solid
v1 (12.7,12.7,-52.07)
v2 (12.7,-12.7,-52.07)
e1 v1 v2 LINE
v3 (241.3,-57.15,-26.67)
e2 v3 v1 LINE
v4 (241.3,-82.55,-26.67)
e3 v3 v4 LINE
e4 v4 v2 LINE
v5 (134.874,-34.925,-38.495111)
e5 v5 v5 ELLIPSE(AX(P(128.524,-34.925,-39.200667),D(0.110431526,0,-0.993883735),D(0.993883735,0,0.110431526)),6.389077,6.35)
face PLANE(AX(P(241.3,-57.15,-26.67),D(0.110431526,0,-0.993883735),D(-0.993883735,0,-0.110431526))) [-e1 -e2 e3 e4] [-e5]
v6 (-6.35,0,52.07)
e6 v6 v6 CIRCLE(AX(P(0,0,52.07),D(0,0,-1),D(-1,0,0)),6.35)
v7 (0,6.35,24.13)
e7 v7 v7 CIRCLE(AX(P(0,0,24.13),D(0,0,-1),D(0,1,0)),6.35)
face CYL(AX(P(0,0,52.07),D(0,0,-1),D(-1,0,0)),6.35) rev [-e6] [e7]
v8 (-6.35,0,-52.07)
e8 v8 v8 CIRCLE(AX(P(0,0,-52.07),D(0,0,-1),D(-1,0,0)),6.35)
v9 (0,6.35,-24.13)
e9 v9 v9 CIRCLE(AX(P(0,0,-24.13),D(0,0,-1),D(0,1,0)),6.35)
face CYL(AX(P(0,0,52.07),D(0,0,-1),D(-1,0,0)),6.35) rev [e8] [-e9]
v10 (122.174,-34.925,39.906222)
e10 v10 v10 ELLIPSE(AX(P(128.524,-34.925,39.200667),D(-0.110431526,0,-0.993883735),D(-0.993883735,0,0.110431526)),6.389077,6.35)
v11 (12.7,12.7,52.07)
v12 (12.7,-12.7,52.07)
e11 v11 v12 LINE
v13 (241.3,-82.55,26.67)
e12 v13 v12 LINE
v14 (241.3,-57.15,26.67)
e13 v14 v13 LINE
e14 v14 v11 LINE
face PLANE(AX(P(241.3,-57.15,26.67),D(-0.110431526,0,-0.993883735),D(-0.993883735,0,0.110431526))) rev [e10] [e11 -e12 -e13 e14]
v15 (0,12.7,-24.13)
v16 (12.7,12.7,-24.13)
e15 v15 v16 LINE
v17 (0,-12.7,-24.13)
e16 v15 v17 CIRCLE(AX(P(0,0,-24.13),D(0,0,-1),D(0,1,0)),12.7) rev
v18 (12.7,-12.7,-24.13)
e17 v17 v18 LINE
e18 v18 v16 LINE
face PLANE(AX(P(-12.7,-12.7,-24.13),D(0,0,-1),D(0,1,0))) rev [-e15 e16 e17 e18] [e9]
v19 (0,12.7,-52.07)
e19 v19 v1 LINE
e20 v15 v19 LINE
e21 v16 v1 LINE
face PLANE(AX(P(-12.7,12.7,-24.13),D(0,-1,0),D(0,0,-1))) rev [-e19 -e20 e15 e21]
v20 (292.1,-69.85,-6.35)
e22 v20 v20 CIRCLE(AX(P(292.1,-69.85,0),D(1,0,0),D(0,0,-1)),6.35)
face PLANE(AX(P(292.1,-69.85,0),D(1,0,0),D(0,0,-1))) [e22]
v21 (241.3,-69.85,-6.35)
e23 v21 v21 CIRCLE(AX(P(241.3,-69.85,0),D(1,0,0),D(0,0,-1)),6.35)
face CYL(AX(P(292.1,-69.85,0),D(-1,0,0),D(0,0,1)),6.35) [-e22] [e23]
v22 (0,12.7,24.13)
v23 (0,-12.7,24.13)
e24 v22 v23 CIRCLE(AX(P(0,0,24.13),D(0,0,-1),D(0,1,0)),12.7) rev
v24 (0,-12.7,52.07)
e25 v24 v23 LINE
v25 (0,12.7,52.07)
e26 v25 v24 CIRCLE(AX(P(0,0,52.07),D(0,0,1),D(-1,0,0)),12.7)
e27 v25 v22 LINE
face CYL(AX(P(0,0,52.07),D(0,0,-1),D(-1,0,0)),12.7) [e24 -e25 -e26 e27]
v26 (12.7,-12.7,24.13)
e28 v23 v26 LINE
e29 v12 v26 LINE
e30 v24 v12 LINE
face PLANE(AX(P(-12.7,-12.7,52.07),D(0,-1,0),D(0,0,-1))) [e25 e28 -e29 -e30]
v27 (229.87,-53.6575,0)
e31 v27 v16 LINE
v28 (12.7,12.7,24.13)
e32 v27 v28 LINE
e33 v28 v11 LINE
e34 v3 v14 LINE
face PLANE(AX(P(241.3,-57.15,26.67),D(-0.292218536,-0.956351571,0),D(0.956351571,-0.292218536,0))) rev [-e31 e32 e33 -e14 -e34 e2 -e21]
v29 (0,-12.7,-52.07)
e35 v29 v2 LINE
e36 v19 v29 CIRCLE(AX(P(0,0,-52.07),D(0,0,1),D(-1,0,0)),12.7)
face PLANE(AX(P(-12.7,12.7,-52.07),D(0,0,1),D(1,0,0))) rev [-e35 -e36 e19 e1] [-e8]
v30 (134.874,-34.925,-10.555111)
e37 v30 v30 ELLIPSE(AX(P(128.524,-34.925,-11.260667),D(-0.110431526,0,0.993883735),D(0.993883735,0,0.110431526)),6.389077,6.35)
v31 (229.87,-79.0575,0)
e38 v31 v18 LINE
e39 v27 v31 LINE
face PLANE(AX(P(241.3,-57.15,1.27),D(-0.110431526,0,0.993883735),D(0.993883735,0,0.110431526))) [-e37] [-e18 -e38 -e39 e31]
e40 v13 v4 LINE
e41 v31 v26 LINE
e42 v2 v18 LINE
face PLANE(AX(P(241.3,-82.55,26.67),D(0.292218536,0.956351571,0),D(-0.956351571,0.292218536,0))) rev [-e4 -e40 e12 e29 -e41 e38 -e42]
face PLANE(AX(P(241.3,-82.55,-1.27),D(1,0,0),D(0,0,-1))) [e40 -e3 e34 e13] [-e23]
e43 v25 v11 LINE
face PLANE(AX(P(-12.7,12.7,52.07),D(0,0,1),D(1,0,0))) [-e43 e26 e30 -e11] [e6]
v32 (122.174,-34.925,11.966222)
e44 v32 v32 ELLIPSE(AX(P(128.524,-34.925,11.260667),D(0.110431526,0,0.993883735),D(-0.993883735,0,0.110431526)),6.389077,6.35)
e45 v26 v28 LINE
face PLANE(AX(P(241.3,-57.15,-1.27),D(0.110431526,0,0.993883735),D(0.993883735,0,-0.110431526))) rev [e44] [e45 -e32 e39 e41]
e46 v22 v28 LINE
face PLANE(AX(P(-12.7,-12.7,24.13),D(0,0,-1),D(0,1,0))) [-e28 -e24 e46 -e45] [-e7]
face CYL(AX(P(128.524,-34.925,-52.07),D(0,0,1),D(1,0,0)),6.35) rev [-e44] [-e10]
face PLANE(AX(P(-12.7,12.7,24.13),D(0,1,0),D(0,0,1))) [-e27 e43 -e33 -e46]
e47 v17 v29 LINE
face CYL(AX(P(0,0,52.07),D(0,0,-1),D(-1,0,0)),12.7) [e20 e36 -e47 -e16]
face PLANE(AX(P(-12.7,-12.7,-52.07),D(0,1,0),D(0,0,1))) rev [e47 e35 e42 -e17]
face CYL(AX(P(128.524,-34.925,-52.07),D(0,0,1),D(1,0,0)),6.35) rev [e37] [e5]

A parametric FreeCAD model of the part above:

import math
import FreeCAD as App
import Part
import Sketcher
from FreeCAD import Vector
Q = App.Units.Quantity

doc = App.newDocument("Part")
body = doc.addObject("PartDesign::Body", "Body")

# Sketch on YZ plane
sketch1 = body.newObject("Sketcher::SketchObject", "Sketch")
sketch1.AttachmentSupport = (doc.getObject("YZ_Plane"), [""])
sketch1.MapMode = "FlatFace"
sketch1.AttachmentOffset = App.Placement(Vector(0, 0, 0.5 * 25.4), App.Rotation())
sketch1.addGeometry(Part.LineSegment(Vector(13, 52, 0), Vector(-13, 52, 0)), False)
sketch1.addGeometry(Part.LineSegment(Vector(-13, 52, 0), Vector(-13, 24, 0)), False)
sketch1.addGeometry(Part.LineSegment(Vector(-13, 24, 0), Vector(13, 24, 0)), False)
sketch1.addGeometry(Part.LineSegment(Vector(13, 24, 0), Vector(13, 52, 0)), False)
sketch1.addConstraint(Sketcher.Constraint("Coincident", 0, 2, 1, 1))
sketch1.addConstraint(Sketcher.Constraint("Coincident", 1, 2, 2, 1))
sketch1.addConstraint(Sketcher.Constraint("Coincident", 2, 2, 3, 1))
sketch1.addConstraint(Sketcher.Constraint("Coincident", 3, 2, 0, 1))
sketch1.addConstraint(Sketcher.Constraint("Horizontal", 0))
sketch1.addConstraint(Sketcher.Constraint("Vertical", 1))
sketch1.addConstraint(Sketcher.Constraint("Horizontal", 2))
sketch1.addConstraint(Sketcher.Constraint("Vertical", 3))
sketch1.addConstraint(Sketcher.Constraint("DistanceX", 0, 2, 0, 1, Q("1 in")))
sketch1.addConstraint(Sketcher.Constraint("DistanceY", 1, 2, 1, 1, Q("1.1 in")))
sketch1.addConstraint(Sketcher.Constraint("DistanceX", 0, 2, -1, 1, Q("0.5 in")))
sketch1.addConstraint(Sketcher.Constraint("DistanceY", -1, 1, 0, 2, Q("2.05 in")))

# Sketch on an angled plane
sketch2 = body.newObject("Sketcher::SketchObject", "Sketch001")
sketch2.Placement = App.Placement(Vector(1.084474, 3.549188, 0), App.Rotation(Vector(0.956351571, -0.292218536, 0), Vector(0, 0, 1), Vector(-0.292218536, -0.956351571, 0), "ZXY"))
sketch2.addGeometry(Part.LineSegment(Vector(12, 38, 0), Vector(251, 13, 0)), False)
sketch2.addConstraint(Sketcher.Constraint("DistanceY", 0, 2, 0, 1, Q("1 in")))
sketch2.addConstraint(Sketcher.Constraint("DistanceY", -1, 1, 0, 1, Q("1.5 in")))
sketch2.addConstraint(Sketcher.Constraint("DistanceX", -1, 1, 0, 2, 251.179099))
sketch2.addConstraint(Sketcher.Constraint("Distance", 0, 240.379164))
doc.recompute()

additivepipe = body.newObject("PartDesign::AdditivePipe", "AdditivePipe")
additivepipe.Profile = sketch1
additivepipe.Spine = (sketch2, ["Edge1"])

# Sketch on YZ plane
sketch3 = body.newObject("Sketcher::SketchObject", "Sketch002")
sketch3.AttachmentSupport = (doc.getObject("YZ_Plane"), [""])
sketch3.MapMode = "FlatFace"
sketch3.AttachmentOffset = App.Placement(Vector(0, 0, 0.5 * 25.4), App.Rotation())
sketch3.addGeometry(Part.LineSegment(Vector(13, 52, 0), Vector(-13, 52, 0)), False)
sketch3.addGeometry(Part.LineSegment(Vector(-13, 52, 0), Vector(-13, 24, 0)), False)
sketch3.addGeometry(Part.LineSegment(Vector(-13, 24, 0), Vector(13, 24, 0)), False)
sketch3.addGeometry(Part.LineSegment(Vector(13, 24, 0), Vector(13, 52, 0)), False)
sketch3.addConstraint(Sketcher.Constraint("Coincident", 0, 2, 1, 1))
sketch3.addConstraint(Sketcher.Constraint("Coincident", 1, 2, 2, 1))
sketch3.addConstraint(Sketcher.Constraint("Coincident", 2, 2, 3, 1))
sketch3.addConstraint(Sketcher.Constraint("Coincident", 3, 2, 0, 1))
sketch3.addConstraint(Sketcher.Constraint("Horizontal", 0))
sketch3.addConstraint(Sketcher.Constraint("Vertical", 1))
sketch3.addConstraint(Sketcher.Constraint("Horizontal", 2))
sketch3.addConstraint(Sketcher.Constraint("Vertical", 3))
sketch3.addConstraint(Sketcher.Constraint("DistanceX", 0, 2, 0, 1, Q("1 in")))
sketch3.addConstraint(Sketcher.Constraint("DistanceY", 1, 2, 1, 1, Q("1.1 in")))
sketch3.addConstraint(Sketcher.Constraint("DistanceX", 0, 2, -1, 1, Q("0.5 in")))
sketch3.addConstraint(Sketcher.Constraint("DistanceY", -1, 1, 0, 2, Q("2.05 in")))
pad1 = body.newObject("PartDesign::Pad", "Pad")
pad1.Profile = sketch3
pad1.Length = Q("1 in")
pad1.Reversed = True
doc.recompute()

mirrored = body.newObject("PartDesign::Mirrored", "Mirrored")
mirrored.Originals = [additivepipe, pad1]
mirrored.MirrorPlane = (doc.getObject("XY_Plane"), [""])
body.Tip = mirrored

# Sketch on XY plane
sketch4 = body.newObject("Sketcher::SketchObject", "Sketch003")
sketch4.AttachmentSupport = (doc.getObject("XY_Plane"), [""])
sketch4.MapMode = "FlatFace"
sketch4.AttachmentOffset = App.Placement(Vector(0, 0, -2.05 * 25.4), App.Rotation())
sketch4.addGeometry(Part.Circle(Vector(0, 0, 0), Vector(0, 0, 1), 6), False)
sketch4.addConstraint(Sketcher.Constraint("Coincident", 0, 3, -1, 1))
sketch4.addConstraint(Sketcher.Constraint("Diameter", 0, Q("0.5 in")))
pocket1 = body.newObject("PartDesign::Pocket", "Pocket")
pocket1.Profile = sketch4
pocket1.Type = "ThroughAll"
pocket1.Reversed = True

# Sketch on XY plane
sketch5 = body.newObject("Sketcher::SketchObject", "Sketch004")
sketch5.AttachmentSupport = (doc.getObject("XY_Plane"), [""])
sketch5.MapMode = "FlatFace"
sketch5.AttachmentOffset = App.Placement(Vector(0, 0, -2.05 * 25.4), App.Rotation())
sketch5.addGeometry(Part.LineSegment(Vector(-13, 13, 0), Vector(0, 13, 0)), False)
sketch5.addGeometry(Part.ArcOfCircle(Part.Circle(Vector(0, 0, 0), Vector(0, 0, 1), 13), math.radians(90), math.radians(180)), False)
sketch5.addGeometry(Part.LineSegment(Vector(-13, 0, 0), Vector(-13, 13, 0)), False)
sketch5.addConstraint(Sketcher.Constraint("Tangent", 0, 2, 1, 1))
sketch5.addConstraint(Sketcher.Constraint("Tangent", 1, 2, 2, 1))
sketch5.addConstraint(Sketcher.Constraint("Coincident", 2, 2, 0, 1))
sketch5.addConstraint(Sketcher.Constraint("Horizontal", 0))
sketch5.addConstraint(Sketcher.Constraint("Vertical", 2))
sketch5.addConstraint(Sketcher.Constraint("Coincident", 1, 3, -1, 1))
sketch5.addConstraint(Sketcher.Constraint("Radius", 1, Q("0.5 in")))
pocket2 = body.newObject("PartDesign::Pocket", "Pocket001")
pocket2.Profile = sketch5
pocket2.Type = "ThroughAll"
pocket2.Reversed = True
doc.recompute()

mirrored2 = body.newObject("PartDesign::Mirrored", "Mirrored001")
mirrored2.Originals = [pocket2]
mirrored2.MirrorPlane = (doc.getObject("XZ_Plane"), [""])
body.Tip = mirrored2

# Sketch on YZ plane
sketch6 = body.newObject("Sketcher::SketchObject", "Sketch005")
sketch6.AttachmentSupport = (doc.getObject("YZ_Plane"), [""])
sketch6.MapMode = "FlatFace"
sketch6.AttachmentOffset = App.Placement(Vector(0, 0, 9.5 * 25.4), App.Rotation())
sketch6.addGeometry(Part.Circle(Vector(-70, 0, 0), Vector(0, 0, 1), 6), False)
sketch6.addConstraint(Sketcher.Constraint("PointOnObject", 0, 3, -1))
sketch6.addConstraint(Sketcher.Constraint("Diameter", 0, Q("0.5 in")))
sketch6.addConstraint(Sketcher.Constraint("DistanceX", 0, 3, -1, 1, Q("2.75 in")))
pad2 = body.newObject("PartDesign::Pad", "Pad001")
pad2.Profile = sketch6
pad2.Length = Q("2 in")

# Sketch on XY plane
sketch7 = body.newObject("Sketcher::SketchObject", "Sketch006")
sketch7.AttachmentSupport = (doc.getObject("XY_Plane"), [""])
sketch7.MapMode = "FlatFace"
sketch7.addGeometry(Part.Circle(Vector(129, -35, 0), Vector(0, 0, 1), 6), False)
sketch7.addConstraint(Sketcher.Constraint("Diameter", 0, Q("0.5 in")))
sketch7.addConstraint(Sketcher.Constraint("DistanceX", -1, 1, 0, 3, Q("5.06 in")))
sketch7.addConstraint(Sketcher.Constraint("DistanceY", 0, 3, -1, 1, Q("1.375 in")))
pocket3 = body.newObject("PartDesign::Pocket", "Pocket002")
pocket3.Profile = sketch7
pocket3.Type = "ThroughAll"
pocket3.Midplane = True

doc.recompute()
